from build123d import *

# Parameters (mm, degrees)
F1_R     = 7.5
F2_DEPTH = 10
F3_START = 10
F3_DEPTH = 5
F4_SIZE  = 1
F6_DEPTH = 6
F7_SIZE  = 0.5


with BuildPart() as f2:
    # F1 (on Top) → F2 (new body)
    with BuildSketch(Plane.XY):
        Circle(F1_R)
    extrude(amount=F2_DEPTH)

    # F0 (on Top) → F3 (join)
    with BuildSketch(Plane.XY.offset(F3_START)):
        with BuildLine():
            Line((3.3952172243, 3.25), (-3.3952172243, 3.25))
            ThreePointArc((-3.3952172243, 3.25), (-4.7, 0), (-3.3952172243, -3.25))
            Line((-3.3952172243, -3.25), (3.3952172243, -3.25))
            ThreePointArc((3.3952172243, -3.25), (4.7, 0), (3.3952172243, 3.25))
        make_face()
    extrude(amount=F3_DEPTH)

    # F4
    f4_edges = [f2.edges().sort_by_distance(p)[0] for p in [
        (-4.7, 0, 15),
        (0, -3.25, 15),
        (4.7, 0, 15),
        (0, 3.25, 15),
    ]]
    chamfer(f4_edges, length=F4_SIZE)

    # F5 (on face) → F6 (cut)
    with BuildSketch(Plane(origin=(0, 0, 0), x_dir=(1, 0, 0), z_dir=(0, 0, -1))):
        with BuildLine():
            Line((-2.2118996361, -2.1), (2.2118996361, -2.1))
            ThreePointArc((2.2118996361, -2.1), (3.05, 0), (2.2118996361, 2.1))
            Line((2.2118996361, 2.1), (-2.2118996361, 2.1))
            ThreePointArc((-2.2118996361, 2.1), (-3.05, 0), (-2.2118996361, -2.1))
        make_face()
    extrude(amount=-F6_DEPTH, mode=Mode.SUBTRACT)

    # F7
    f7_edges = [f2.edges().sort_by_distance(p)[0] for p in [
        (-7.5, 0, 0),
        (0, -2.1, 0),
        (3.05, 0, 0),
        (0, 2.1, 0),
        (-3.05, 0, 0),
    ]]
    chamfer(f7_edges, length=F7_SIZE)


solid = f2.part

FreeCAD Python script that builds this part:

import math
import FreeCAD as App
import Part
import Sketcher


def edges_at(feature, points):
    """Names of the edges that pass closest to the given points."""
    edges = feature.Shape.Edges
    near = lambda p: min(range(len(edges)), key=lambda i: edges[i].distToShape(Part.Vertex(*p))[0])
    return sorted({f"Edge{near(p) + 1}" for p in points})

doc = App.newDocument("Part")
body = doc.addObject("PartDesign::Body", "Body")

# Sketch on XY plane
sketch1 = body.newObject("Sketcher::SketchObject", "Sketch")
sketch1.AttachmentSupport = (doc.getObject("XY_Plane"), [""])
sketch1.MapMode = "FlatFace"
sketch1.addGeometry(Part.Circle(App.Vector(0, 0, 0), App.Vector(0, 0, 1), 8), False)
sketch1.addConstraint([
    Sketcher.Constraint("Coincident", 0, 3, -1, 1),
    Sketcher.Constraint("Diameter", 0, 15.0),
])
pad1 = body.newObject("PartDesign::Pad", "Pad")
pad1.Profile = sketch1
pad1.Length = 10

# Sketch on XY plane
sketch2 = body.newObject("Sketcher::SketchObject", "Sketch001")
sketch2.AttachmentSupport = (doc.getObject("XY_Plane"), [""])
sketch2.MapMode = "FlatFace"
sketch2.AttachmentOffset = App.Placement(App.Vector(0, 0, 10), App.Rotation())
sketch2.addGeometry([
    Part.LineSegment(App.Vector(3.4, 3.2, 0), App.Vector(-3.4, 3.2, 0)),
    Part.ArcOfCircle(Part.Circle(App.Vector(0, 0, 0), App.Vector(0, 0, 1), 4.7), math.radians(136), math.radians(224)),
    Part.LineSegment(App.Vector(-3.4, -3.2, 0), App.Vector(3.4, -3.2, 0)),
    Part.ArcOfCircle(Part.Circle(App.Vector(0, 0, 0), App.Vector(0, 0, 1), 4.7), math.radians(-44), math.radians(44)),
], False)
sketch2.addConstraint([
    Sketcher.Constraint("Coincident", 0, 2, 1, 1),
    Sketcher.Constraint("Coincident", 1, 2, 2, 1),
    Sketcher.Constraint("Coincident", 2, 2, 3, 1),
    Sketcher.Constraint("Coincident", 3, 2, 0, 1),
    Sketcher.Constraint("Horizontal", 0),
    Sketcher.Constraint("Horizontal", 2),
    Sketcher.Constraint("Coincident", 1, 3, -1, 1),
    Sketcher.Constraint("Coincident", 3, 3, -1, 1),
    Sketcher.Constraint("Equal", 1, 3),
    Sketcher.Constraint("Vertical", 0, 2, 1, 2),
    Sketcher.Constraint("Radius", 1, 4.7),
    Sketcher.Constraint("DistanceY", 1, 2, 0, 2, 6.5),
])
pad2 = body.newObject("PartDesign::Pad", "Pad001")
pad2.Profile = sketch2
pad2.Length = 5
doc.recompute()

chamfer = body.newObject("PartDesign::Chamfer", "Chamfer")
chamfer.Base = (pad2, edges_at(pad2, [
    (-4.7, 0, 15),
    (0, -3.25, 15),
    (4.7, 0, 15),
    (0, 3.25, 15),
]))
chamfer.Size = 1

# Sketch on XY plane
sketch3 = body.newObject("Sketcher::SketchObject", "Sketch002")
sketch3.AttachmentSupport = (doc.getObject("XY_Plane"), [""])
sketch3.MapMode = "FlatFace"
sketch3.addGeometry([
    Part.LineSegment(App.Vector(-2.2, 2.1, 0), App.Vector(2.2, 2.1, 0)),
    Part.ArcOfCircle(Part.Circle(App.Vector(0, 0, 0), App.Vector(0, 0, 1), 3), math.radians(-44), math.radians(44)),
    Part.LineSegment(App.Vector(2.2, -2.1, 0), App.Vector(-2.2, -2.1, 0)),
    Part.ArcOfCircle(Part.Circle(App.Vector(0, 0, 0), App.Vector(0, 0, 1), 3), math.radians(136), math.radians(224)),
], False)
sketch3.addConstraint([
    Sketcher.Constraint("Coincident", 0, 2, 1, 2),
    Sketcher.Constraint("Coincident", 1, 1, 2, 1),
    Sketcher.Constraint("Coincident", 2, 2, 3, 2),
    Sketcher.Constraint("Coincident", 3, 1, 0, 1),
    Sketcher.Constraint("Horizontal", 0),
    Sketcher.Constraint("Horizontal", 2),
    Sketcher.Constraint("Coincident", 1, 3, -1, 1),
    Sketcher.Constraint("Coincident", 3, 3, -1, 1),
    Sketcher.Constraint("Equal", 1, 3),
    Sketcher.Constraint("Vertical", 0, 2, 1, 1),
    Sketcher.Constraint("Radius", 1, 3.05),
    Sketcher.Constraint("DistanceY", -1, 1, 0, 2, 2.1),
])
pocket1 = body.newObject("PartDesign::Pocket", "Pocket")
pocket1.Profile = sketch3
pocket1.Length = 6
pocket1.Reversed = True
doc.recompute()

chamfer2 = body.newObject("PartDesign::Chamfer", "Chamfer001")
chamfer2.Base = (pocket1, edges_at(pocket1, [
    (-7.5, 0, 0),
    (0, -2.1, 0),
    (3.05, 0, 0),
    (0, 2.1, 0),
    (-3.05, 0, 0),
]))
chamfer2.Size = 0.5

doc.recompute()
